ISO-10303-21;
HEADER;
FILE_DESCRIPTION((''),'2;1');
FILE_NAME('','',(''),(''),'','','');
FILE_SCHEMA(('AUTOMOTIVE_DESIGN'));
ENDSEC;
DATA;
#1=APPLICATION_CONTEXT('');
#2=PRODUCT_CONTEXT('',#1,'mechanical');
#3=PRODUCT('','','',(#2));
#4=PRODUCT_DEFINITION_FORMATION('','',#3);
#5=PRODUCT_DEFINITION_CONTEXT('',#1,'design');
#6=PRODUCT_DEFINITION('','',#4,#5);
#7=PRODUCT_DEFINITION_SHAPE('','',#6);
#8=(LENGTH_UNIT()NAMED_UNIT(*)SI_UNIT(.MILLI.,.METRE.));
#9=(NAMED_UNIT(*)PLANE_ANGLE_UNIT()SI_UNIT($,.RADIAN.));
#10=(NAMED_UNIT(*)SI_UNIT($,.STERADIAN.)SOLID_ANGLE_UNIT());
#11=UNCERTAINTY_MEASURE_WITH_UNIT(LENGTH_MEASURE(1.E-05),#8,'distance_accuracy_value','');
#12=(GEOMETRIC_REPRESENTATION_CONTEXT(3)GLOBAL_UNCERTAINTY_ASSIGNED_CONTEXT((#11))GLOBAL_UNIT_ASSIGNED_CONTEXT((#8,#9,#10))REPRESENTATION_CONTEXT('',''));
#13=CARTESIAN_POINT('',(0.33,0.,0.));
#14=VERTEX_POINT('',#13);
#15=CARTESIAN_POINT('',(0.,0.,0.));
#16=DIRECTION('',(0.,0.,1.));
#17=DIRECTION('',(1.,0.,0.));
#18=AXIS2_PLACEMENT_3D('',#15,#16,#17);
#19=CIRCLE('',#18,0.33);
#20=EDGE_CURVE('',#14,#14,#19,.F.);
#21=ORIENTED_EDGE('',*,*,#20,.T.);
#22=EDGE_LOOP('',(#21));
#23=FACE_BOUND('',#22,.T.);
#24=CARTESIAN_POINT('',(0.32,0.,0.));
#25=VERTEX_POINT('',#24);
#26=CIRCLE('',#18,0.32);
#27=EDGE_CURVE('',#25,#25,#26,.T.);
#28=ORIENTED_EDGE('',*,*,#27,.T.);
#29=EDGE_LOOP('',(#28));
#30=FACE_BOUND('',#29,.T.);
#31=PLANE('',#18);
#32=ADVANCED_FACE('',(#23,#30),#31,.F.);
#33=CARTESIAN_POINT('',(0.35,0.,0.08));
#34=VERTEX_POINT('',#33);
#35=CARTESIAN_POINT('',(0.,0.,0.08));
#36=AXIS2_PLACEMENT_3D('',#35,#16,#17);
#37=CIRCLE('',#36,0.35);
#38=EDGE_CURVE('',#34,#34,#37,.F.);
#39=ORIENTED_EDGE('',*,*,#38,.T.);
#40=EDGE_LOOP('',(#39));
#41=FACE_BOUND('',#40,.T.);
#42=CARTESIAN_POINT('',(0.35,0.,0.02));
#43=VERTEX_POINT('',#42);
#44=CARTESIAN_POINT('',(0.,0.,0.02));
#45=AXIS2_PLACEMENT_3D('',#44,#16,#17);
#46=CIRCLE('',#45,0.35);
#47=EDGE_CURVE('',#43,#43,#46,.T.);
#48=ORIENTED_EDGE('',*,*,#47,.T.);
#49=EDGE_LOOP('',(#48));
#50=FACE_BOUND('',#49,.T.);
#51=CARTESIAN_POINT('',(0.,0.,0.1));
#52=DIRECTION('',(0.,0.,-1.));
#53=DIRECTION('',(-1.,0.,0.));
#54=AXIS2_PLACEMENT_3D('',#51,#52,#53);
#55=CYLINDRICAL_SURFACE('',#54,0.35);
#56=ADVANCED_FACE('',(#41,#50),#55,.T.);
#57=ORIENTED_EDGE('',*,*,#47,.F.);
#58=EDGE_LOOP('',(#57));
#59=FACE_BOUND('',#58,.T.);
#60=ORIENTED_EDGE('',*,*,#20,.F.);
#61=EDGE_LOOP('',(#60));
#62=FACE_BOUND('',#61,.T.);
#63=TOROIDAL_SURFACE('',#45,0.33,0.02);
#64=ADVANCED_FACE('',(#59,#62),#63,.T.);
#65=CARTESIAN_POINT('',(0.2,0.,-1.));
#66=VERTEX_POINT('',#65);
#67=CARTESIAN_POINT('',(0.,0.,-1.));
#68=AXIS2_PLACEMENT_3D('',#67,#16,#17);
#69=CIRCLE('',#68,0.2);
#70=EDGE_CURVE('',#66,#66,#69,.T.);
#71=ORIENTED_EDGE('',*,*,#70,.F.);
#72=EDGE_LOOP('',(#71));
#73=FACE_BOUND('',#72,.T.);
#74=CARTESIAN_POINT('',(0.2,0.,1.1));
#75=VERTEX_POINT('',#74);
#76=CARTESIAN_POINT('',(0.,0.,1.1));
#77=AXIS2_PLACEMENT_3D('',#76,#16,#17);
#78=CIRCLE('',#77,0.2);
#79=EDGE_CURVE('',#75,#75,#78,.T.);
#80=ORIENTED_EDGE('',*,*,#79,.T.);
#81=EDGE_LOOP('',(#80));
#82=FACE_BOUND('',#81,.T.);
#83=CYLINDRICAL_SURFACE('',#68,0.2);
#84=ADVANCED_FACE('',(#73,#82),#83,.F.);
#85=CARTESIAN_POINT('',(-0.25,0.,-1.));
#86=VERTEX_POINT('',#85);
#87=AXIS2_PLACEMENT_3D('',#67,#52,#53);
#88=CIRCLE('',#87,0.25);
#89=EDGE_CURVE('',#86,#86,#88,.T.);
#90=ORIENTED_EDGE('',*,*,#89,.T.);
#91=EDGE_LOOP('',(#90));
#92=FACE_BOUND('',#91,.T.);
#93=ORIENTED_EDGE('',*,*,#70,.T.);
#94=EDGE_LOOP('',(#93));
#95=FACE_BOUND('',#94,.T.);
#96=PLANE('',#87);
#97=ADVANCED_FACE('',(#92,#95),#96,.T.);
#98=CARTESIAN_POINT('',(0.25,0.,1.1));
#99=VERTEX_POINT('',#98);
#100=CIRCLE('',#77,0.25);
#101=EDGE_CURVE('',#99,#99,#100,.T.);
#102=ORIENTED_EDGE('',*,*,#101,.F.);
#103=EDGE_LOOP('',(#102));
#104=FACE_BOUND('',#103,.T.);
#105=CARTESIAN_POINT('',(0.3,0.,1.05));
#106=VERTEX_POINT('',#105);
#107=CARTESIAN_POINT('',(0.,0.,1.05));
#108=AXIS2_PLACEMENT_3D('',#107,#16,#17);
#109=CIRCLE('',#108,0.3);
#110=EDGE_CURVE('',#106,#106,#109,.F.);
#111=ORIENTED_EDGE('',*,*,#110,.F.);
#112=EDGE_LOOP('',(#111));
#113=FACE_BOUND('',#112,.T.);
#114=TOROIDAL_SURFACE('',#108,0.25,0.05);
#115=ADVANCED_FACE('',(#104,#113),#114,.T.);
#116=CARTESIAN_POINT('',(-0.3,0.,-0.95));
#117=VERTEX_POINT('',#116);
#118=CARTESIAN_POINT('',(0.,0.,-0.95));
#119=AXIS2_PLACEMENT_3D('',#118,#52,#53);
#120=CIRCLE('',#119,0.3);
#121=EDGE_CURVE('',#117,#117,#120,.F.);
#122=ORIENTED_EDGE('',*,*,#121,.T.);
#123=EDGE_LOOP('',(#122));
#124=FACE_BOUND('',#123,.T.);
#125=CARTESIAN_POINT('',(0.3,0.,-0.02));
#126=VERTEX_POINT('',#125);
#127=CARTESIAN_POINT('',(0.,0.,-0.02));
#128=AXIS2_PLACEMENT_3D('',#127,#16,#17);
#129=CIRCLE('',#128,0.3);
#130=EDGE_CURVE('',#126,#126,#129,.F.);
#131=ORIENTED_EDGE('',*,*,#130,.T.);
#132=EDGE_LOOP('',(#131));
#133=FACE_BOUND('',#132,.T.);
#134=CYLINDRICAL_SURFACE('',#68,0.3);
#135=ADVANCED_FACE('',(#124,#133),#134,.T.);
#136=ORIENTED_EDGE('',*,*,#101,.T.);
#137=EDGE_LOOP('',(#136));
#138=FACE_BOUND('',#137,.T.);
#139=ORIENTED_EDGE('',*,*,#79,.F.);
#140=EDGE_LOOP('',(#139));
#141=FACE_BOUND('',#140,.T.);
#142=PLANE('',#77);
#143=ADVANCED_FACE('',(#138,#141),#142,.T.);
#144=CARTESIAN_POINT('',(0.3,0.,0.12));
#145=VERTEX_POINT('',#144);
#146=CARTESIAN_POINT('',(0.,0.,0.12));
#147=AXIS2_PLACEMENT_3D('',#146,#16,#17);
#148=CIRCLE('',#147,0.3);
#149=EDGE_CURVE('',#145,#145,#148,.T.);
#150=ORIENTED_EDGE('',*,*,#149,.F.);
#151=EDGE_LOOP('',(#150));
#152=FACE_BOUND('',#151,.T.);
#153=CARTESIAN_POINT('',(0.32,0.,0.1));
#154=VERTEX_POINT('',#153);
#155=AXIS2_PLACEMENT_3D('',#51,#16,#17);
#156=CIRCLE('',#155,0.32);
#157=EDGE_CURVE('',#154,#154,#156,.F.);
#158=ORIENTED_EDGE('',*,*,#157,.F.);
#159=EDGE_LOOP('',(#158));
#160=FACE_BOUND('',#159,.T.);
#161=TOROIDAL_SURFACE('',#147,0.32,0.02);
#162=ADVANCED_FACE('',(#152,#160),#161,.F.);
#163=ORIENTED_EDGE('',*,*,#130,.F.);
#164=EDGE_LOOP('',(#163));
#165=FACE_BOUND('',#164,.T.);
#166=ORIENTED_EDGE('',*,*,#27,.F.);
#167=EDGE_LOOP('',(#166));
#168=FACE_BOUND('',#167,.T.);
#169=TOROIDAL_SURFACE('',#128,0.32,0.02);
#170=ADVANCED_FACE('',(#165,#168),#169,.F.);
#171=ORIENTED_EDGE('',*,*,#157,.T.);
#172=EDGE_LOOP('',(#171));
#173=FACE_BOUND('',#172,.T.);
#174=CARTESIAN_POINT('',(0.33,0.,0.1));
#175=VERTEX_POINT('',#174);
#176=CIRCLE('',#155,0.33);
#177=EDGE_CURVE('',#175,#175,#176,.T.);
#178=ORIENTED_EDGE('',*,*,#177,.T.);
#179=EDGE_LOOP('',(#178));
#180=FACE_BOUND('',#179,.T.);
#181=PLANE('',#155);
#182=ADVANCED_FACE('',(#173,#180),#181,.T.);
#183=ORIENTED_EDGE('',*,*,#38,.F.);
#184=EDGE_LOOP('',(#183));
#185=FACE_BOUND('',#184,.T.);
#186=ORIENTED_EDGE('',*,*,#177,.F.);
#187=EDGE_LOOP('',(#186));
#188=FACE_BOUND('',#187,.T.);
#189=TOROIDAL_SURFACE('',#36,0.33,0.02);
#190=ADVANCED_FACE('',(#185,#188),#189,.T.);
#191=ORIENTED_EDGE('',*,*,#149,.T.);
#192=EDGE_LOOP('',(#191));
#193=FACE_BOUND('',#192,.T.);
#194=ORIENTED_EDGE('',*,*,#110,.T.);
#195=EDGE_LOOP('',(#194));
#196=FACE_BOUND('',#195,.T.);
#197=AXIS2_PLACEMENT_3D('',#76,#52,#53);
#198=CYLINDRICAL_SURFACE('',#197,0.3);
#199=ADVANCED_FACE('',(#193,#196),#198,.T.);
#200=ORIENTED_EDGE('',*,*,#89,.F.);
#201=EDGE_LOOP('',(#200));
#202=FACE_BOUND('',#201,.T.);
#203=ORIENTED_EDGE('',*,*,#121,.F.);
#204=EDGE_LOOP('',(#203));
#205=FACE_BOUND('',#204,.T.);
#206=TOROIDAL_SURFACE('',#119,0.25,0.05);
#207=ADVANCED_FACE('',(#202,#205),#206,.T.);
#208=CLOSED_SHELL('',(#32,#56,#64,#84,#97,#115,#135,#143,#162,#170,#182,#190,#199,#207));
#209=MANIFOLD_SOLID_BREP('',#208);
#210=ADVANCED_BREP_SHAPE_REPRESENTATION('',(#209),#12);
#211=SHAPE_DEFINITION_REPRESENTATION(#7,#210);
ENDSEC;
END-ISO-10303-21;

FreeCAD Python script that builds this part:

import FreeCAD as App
import Part
import Sketcher


def edges_at(feature, points):
    """Names of the edges that pass closest to the given points."""
    edges = feature.Shape.Edges
    near = lambda p: min(range(len(edges)), key=lambda i: edges[i].distToShape(Part.Vertex(*p))[0])
    return sorted({f"Edge{near(p) + 1}" for p in points})

doc = App.newDocument("Part")
body = doc.addObject("PartDesign::Body", "Body")

# Sketch on XY plane
sketch1 = doc.addObject("Sketcher::SketchObject", "Sketch")
body.addObject(sketch1)
sketch1.AttachmentSupport = (doc.XY_Plane, [""])
sketch1.MapMode = "FlatFace"
sketch1.addGeometry(Part.Circle(App.Vector(0, 0, 0), App.Vector(0, 0, 1), 0.35), False)
sketch1.addConstraint([
    Sketcher.Constraint("Coincident", 0, 3, -1, 1),
    Sketcher.Constraint("Diameter", 0, 0.7),
])
pad1 = doc.addObject("PartDesign::Pad", "Pad")
body.addObject(pad1)
pad1.Profile = sketch1
pad1.Length = 0.1

# Sketch on XY plane
sketch2 = doc.addObject("Sketcher::SketchObject", "Sketch001")
body.addObject(sketch2)
sketch2.AttachmentSupport = (doc.XY_Plane, [""])
sketch2.MapMode = "FlatFace"
sketch2.AttachmentOffset = App.Placement(App.Vector(0, 0, 0.1), App.Rotation())
sketch2.addGeometry(Part.Circle(App.Vector(0, 0, 0), App.Vector(0, 0, 1), 0.3), False)
sketch2.addConstraint([
    Sketcher.Constraint("Coincident", 0, 3, -1, 1),
    Sketcher.Constraint("Diameter", 0, 0.6),
])
pad2 = doc.addObject("PartDesign::Pad", "Pad001")
body.addObject(pad2)
pad2.Profile = sketch2
pad2.Length = 1

# Sketch on XY plane
sketch3 = doc.addObject("Sketcher::SketchObject", "Sketch002")
body.addObject(sketch3)
sketch3.AttachmentSupport = (doc.XY_Plane, [""])
sketch3.MapMode = "FlatFace"
sketch3.AttachmentOffset = App.Placement(App.Vector(0, 0, -1), App.Rotation())
sketch3.addGeometry(Part.Circle(App.Vector(0, 0, 0), App.Vector(0, 0, 1), 0.3), False)
sketch3.addConstraint([
    Sketcher.Constraint("Coincident", 0, 3, -1, 1),
    Sketcher.Constraint("Diameter", 0, 0.6),
])
pad3 = doc.addObject("PartDesign::Pad", "Pad002")
body.addObject(pad3)
pad3.Profile = sketch3
pad3.Length = 1
doc.recompute()

fillet = doc.addObject("PartDesign::Fillet", "Fillet")
body.addObject(fillet)
fillet.Base = (pad3, edges_at(pad3, [(-0.3, 0, 1.1)]))
fillet.Radius = 0.05
doc.recompute()

fillet2 = doc.addObject("PartDesign::Fillet", "Fillet001")
body.addObject(fillet2)
fillet2.Base = (fillet, edges_at(fillet, [(-0.3, 0, -1)]))
fillet2.Radius = 0.05
doc.recompute()

fillet3 = doc.addObject("PartDesign::Fillet", "Fillet002")
body.addObject(fillet3)
fillet3.Base = (fillet2, edges_at(fillet2, [(-0.35, 0, 0.1)]))
fillet3.Radius = 0.02
doc.recompute()

fillet4 = doc.addObject("PartDesign::Fillet", "Fillet003")
body.addObject(fillet4)
fillet4.Base = (fillet3, edges_at(fillet3, [(-0.3, 0, 0)]))
fillet4.Radius = 0.02
doc.recompute()

fillet5 = doc.addObject("PartDesign::Fillet", "Fillet004")
body.addObject(fillet5)
fillet5.Base = (fillet4, edges_at(fillet4, [(-0.35, 0, 0)]))
fillet5.Radius = 0.02
doc.recompute()

fillet6 = doc.addObject("PartDesign::Fillet", "Fillet005")
body.addObject(fillet6)
fillet6.Base = (fillet5, edges_at(fillet5, [(-0.3, 0, 0.1)]))
fillet6.Radius = 0.02

# Sketch on XY plane
sketch4 = doc.addObject("Sketcher::SketchObject", "Sketch003")
body.addObject(sketch4)
sketch4.AttachmentSupport = (doc.XY_Plane, [""])
sketch4.MapMode = "FlatFace"
sketch4.AttachmentOffset = App.Placement(App.Vector(0, 0, 1.1), App.Rotation())
sketch4.addGeometry(Part.Circle(App.Vector(0, 0, 0), App.Vector(0, 0, 1), 0.2), False)
sketch4.addConstraint([
    Sketcher.Constraint("Coincident", 0, 3, -1, 1),
    Sketcher.Constraint("Diameter", 0, 0.4),
])
pocket1 = doc.addObject("PartDesign::Pocket", "Pocket")
body.addObject(pocket1)
pocket1.Profile = sketch4
pocket1.Length = 2.1

doc.recompute()
